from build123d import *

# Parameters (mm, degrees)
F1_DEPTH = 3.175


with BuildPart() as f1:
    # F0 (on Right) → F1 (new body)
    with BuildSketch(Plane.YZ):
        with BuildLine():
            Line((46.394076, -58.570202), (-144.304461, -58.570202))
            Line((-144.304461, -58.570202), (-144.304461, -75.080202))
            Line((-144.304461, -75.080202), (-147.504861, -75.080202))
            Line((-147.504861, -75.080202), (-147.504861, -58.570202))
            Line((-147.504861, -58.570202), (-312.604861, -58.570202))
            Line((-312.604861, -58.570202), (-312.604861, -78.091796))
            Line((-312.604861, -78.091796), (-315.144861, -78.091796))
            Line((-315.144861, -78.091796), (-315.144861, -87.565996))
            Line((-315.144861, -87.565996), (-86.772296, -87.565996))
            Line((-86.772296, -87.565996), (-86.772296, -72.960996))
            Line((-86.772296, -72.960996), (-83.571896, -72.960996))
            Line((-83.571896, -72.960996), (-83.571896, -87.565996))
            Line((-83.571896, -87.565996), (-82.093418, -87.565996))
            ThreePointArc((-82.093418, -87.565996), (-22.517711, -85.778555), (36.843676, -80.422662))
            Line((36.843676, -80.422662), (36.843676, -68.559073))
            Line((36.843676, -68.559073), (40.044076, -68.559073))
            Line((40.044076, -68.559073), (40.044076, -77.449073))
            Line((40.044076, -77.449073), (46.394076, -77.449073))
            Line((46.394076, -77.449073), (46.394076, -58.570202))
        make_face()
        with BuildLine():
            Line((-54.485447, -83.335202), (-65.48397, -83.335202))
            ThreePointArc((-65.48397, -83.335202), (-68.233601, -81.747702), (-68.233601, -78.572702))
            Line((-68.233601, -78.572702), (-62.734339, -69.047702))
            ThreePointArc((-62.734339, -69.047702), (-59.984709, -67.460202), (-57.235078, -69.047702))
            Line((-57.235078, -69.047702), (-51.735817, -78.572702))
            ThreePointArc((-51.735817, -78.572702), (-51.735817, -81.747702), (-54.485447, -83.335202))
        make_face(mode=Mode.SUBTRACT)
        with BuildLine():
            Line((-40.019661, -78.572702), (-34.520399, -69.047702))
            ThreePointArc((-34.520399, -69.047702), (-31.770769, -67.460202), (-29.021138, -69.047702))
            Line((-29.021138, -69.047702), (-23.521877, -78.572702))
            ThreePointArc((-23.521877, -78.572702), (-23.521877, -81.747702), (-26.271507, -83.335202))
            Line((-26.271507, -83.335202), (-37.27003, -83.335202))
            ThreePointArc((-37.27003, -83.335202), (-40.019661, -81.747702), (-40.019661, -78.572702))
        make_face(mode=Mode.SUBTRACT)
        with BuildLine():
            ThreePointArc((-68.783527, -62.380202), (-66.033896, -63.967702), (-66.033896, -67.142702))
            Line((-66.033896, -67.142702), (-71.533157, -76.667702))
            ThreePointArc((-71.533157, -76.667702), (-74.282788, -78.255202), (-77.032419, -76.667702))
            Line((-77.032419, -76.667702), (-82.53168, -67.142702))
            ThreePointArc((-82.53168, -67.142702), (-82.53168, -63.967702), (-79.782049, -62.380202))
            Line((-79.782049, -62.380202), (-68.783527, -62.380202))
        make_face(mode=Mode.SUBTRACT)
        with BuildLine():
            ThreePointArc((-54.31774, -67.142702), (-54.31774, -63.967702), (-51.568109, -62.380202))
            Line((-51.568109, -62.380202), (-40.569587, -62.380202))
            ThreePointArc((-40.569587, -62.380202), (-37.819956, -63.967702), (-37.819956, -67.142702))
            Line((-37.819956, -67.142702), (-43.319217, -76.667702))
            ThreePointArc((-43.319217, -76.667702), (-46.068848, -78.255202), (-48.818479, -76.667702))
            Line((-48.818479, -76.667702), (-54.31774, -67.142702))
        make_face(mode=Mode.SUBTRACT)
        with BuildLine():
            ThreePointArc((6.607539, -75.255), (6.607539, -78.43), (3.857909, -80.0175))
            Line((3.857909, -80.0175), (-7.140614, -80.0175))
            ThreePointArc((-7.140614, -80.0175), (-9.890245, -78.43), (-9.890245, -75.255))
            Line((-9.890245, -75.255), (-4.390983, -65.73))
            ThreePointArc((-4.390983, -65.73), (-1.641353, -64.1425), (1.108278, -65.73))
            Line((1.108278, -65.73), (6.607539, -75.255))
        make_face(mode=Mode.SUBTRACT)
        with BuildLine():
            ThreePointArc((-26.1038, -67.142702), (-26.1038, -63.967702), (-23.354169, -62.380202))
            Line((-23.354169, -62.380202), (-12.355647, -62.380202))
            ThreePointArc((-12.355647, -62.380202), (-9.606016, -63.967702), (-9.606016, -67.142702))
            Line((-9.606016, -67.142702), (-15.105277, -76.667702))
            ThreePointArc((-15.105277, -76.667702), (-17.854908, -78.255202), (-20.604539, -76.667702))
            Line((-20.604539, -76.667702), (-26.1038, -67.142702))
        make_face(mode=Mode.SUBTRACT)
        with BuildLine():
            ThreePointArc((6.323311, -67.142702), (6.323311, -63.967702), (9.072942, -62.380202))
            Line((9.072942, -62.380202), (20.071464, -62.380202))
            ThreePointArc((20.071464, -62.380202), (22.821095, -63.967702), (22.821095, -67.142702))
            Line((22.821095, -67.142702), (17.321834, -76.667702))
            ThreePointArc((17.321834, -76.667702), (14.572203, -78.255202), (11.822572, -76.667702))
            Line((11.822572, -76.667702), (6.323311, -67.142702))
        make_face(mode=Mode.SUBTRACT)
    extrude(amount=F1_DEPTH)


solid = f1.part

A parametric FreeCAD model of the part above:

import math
import FreeCAD as App
import Part
import Sketcher
from FreeCAD import Vector
Q = App.Units.Quantity

doc = App.newDocument("Part")
body = doc.addObject("PartDesign::Body", "Body")

sketch1 = body.newObject("Sketcher::SketchObject", "Sketch")
sketch1.AttachmentSupport = (doc.getObject("YZ_Plane"), [""])
sketch1.MapMode = "FlatFace"
sketch1.addGeometry([
    Part.LineSegment(Vector(46.4, -58.6, 0), Vector(-144.3, -58.6, 0)),
    Part.LineSegment(Vector(-144.3, -58.6, 0), Vector(-144.3, -75.1, 0)),
    Part.LineSegment(Vector(-144.3, -75.1, 0), Vector(-147.5, -75.1, 0)),
    Part.LineSegment(Vector(-147.5, -75.1, 0), Vector(-147.5, -58.6, 0)),
    Part.LineSegment(Vector(-147.5, -58.6, 0), Vector(-312.6, -58.6, 0)),
    Part.LineSegment(Vector(-312.6, -58.6, 0), Vector(-312.6, -78.1, 0)),
    Part.LineSegment(Vector(-312.6, -78.1, 0), Vector(-315.1, -78.1, 0)),
    Part.LineSegment(Vector(-315.1, -78.1, 0), Vector(-315.1, -87.6, 0)),
    Part.LineSegment(Vector(-315.1, -87.6, 0), Vector(-86.8, -87.6, 0)),
    Part.LineSegment(Vector(-86.8, -87.6, 0), Vector(-86.8, -73, 0)),
    Part.LineSegment(Vector(-86.8, -73, 0), Vector(-83.6, -73, 0)),
    Part.LineSegment(Vector(-83.6, -73, 0), Vector(-83.6, -87.6, 0)),
    Part.LineSegment(Vector(-83.6, -87.6, 0), Vector(-82.1, -87.6, 0)),
    Part.ArcOfCircle(Part.Circle(Vector(-82.1, 906.2, 0), Vector(0, 0, 1), 993.7), math.radians(-90), math.radians(-83.13)),
    Part.LineSegment(Vector(36.8, -80.4, 0), Vector(36.8, -68.6, 0)),
    Part.LineSegment(Vector(36.8, -68.6, 0), Vector(40, -68.6, 0)),
    Part.LineSegment(Vector(40, -68.6, 0), Vector(40, -77.4, 0)),
    Part.LineSegment(Vector(40, -77.4, 0), Vector(46.4, -77.4, 0)),
    Part.LineSegment(Vector(46.4, -77.4, 0), Vector(46.4, -58.6, 0)),
    Part.ArcOfCircle(Part.Circle(Vector(-54.5, -80.2, 0), Vector(0, 0, 1), 3.2), math.radians(-90), math.radians(30)),
    Part.LineSegment(Vector(-54.5, -83.3, 0), Vector(-65.5, -83.3, 0)),
    Part.ArcOfCircle(Part.Circle(Vector(-65.5, -80.2, 0), Vector(0, 0, 1), 3.2), math.radians(150), math.radians(270)),
    Part.LineSegment(Vector(-68.2, -78.6, 0), Vector(-62.7, -69, 0)),
    Part.ArcOfCircle(Part.Circle(Vector(-60, -70.6, 0), Vector(0, 0, 1), 3.2), math.radians(30), math.radians(150)),
    Part.LineSegment(Vector(-57.2, -69, 0), Vector(-51.7, -78.6, 0)),
    Part.ArcOfCircle(Part.Circle(Vector(-37.3, -80.2, 0), Vector(0, 0, 1), 3.2), math.radians(150), math.radians(270)),
    Part.LineSegment(Vector(-40, -78.6, 0), Vector(-34.5, -69, 0)),
    Part.ArcOfCircle(Part.Circle(Vector(-31.8, -70.6, 0), Vector(0, 0, 1), 3.2), math.radians(30), math.radians(150)),
    Part.LineSegment(Vector(-29, -69, 0), Vector(-23.5, -78.6, 0)),
    Part.ArcOfCircle(Part.Circle(Vector(-26.3, -80.2, 0), Vector(0, 0, 1), 3.2), math.radians(-90), math.radians(30)),
    Part.LineSegment(Vector(-26.3, -83.3, 0), Vector(-37.3, -83.3, 0)),
    Part.LineSegment(Vector(-79.8, -62.4, 0), Vector(-68.8, -62.4, 0)),
    Part.ArcOfCircle(Part.Circle(Vector(-68.8, -65.6, 0), Vector(0, 0, 1), 3.2), math.radians(-30), math.radians(90)),
    Part.LineSegment(Vector(-66, -67.1, 0), Vector(-71.5, -76.7, 0)),
    Part.ArcOfCircle(Part.Circle(Vector(-74.3, -75.1, 0), Vector(0, 0, 1), 3.2), math.radians(-150), math.radians(-30)),
    Part.LineSegment(Vector(-77, -76.7, 0), Vector(-82.5, -67.1, 0)),
    Part.ArcOfCircle(Part.Circle(Vector(-79.8, -65.6, 0), Vector(0, 0, 1), 3.2), math.radians(90), math.radians(210)),
    Part.LineSegment(Vector(-48.8, -76.7, 0), Vector(-54.3, -67.1, 0)),
    Part.ArcOfCircle(Part.Circle(Vector(-51.6, -65.6, 0), Vector(0, 0, 1), 3.2), math.radians(90), math.radians(210)),
    Part.LineSegment(Vector(-51.6, -62.4, 0), Vector(-40.6, -62.4, 0)),
    Part.ArcOfCircle(Part.Circle(Vector(-40.6, -65.6, 0), Vector(0, 0, 1), 3.2), math.radians(-30), math.radians(90)),
    Part.LineSegment(Vector(-37.8, -67.1, 0), Vector(-43.3, -76.7, 0)),
    Part.ArcOfCircle(Part.Circle(Vector(-46.1, -75.1, 0), Vector(0, 0, 1), 3.2), math.radians(-150), math.radians(-30)),
    Part.LineSegment(Vector(-20.6, -76.7, 0), Vector(-26.1, -67.1, 0)),
    Part.ArcOfCircle(Part.Circle(Vector(-23.4, -65.6, 0), Vector(0, 0, 1), 3.2), math.radians(90), math.radians(210)),
    Part.LineSegment(Vector(-23.4, -62.4, 0), Vector(-12.4, -62.4, 0)),
    Part.ArcOfCircle(Part.Circle(Vector(-12.4, -65.6, 0), Vector(0, 0, 1), 3.2), math.radians(-30), math.radians(90)),
    Part.LineSegment(Vector(-9.6, -67.1, 0), Vector(-15.1, -76.7, 0)),
    Part.ArcOfCircle(Part.Circle(Vector(-17.9, -75.1, 0), Vector(0, 0, 1), 3.2), math.radians(-150), math.radians(-30)),
    Part.LineSegment(Vector(1.1, -65.7, 0), Vector(6.6, -75.3, 0)),
    Part.ArcOfCircle(Part.Circle(Vector(3.9, -76.8, 0), Vector(0, 0, 1), 3.2), math.radians(-90), math.radians(30)),
    Part.LineSegment(Vector(3.9, -80, 0), Vector(-7.1, -80, 0)),
    Part.ArcOfCircle(Part.Circle(Vector(-7.1, -76.8, 0), Vector(0, 0, 1), 3.2), math.radians(150), math.radians(270)),
    Part.LineSegment(Vector(-9.9, -75.3, 0), Vector(-4.4, -65.7, 0)),
    Part.ArcOfCircle(Part.Circle(Vector(-1.6, -67.3, 0), Vector(0, 0, 1), 3.2), math.radians(30), math.radians(150)),
    Part.LineSegment(Vector(11.8, -76.7, 0), Vector(6.3, -67.1, 0)),
    Part.ArcOfCircle(Part.Circle(Vector(9.1, -65.6, 0), Vector(0, 0, 1), 3.2), math.radians(90), math.radians(210)),
    Part.LineSegment(Vector(9.1, -62.4, 0), Vector(20.1, -62.4, 0)),
    Part.ArcOfCircle(Part.Circle(Vector(20.1, -65.6, 0), Vector(0, 0, 1), 3.2), math.radians(-30), math.radians(90)),
    Part.LineSegment(Vector(22.8, -67.1, 0), Vector(17.3, -76.7, 0)),
    Part.ArcOfCircle(Part.Circle(Vector(14.6, -75.1, 0), Vector(0, 0, 1), 3.2), math.radians(-150), math.radians(-30)),
], False)
sketch1.addConstraint([
    Sketcher.Constraint("Coincident", 0, 2, 1, 1),
    Sketcher.Constraint("Coincident", 1, 2, 2, 1),
    Sketcher.Constraint("Coincident", 2, 2, 3, 1),
    Sketcher.Constraint("Coincident", 3, 2, 4, 1),
    Sketcher.Constraint("Coincident", 4, 2, 5, 1),
    Sketcher.Constraint("Coincident", 5, 2, 6, 1),
    Sketcher.Constraint("Coincident", 6, 2, 7, 1),
    Sketcher.Constraint("Coincident", 7, 2, 8, 1),
    Sketcher.Constraint("Coincident", 8, 2, 9, 1),
    Sketcher.Constraint("Coincident", 9, 2, 10, 1),
    Sketcher.Constraint("Coincident", 10, 2, 11, 1),
    Sketcher.Constraint("Coincident", 11, 2, 12, 1),
    Sketcher.Constraint("Tangent", 12, 2, 13, 1),
    Sketcher.Constraint("Coincident", 13, 2, 14, 1),
    Sketcher.Constraint("Coincident", 14, 2, 15, 1),
    Sketcher.Constraint("Coincident", 15, 2, 16, 1),
    Sketcher.Constraint("Coincident", 16, 2, 17, 1),
    Sketcher.Constraint("Coincident", 17, 2, 18, 1),
    Sketcher.Constraint("Coincident", 18, 2, 0, 1),
    Sketcher.Constraint("Tangent", 19, 1, 20, 1),
    Sketcher.Constraint("Tangent", 20, 2, 21, 2),
    Sketcher.Constraint("Tangent", 21, 1, 22, 1),
    Sketcher.Constraint("Tangent", 22, 2, 23, 2),
    Sketcher.Constraint("Tangent", 23, 1, 24, 1),
    Sketcher.Constraint("Tangent", 24, 2, 19, 2),
    Sketcher.Constraint("Tangent", 25, 1, 26, 1),
    Sketcher.Constraint("Tangent", 26, 2, 27, 2),
    Sketcher.Constraint("Tangent", 27, 1, 28, 1),
    Sketcher.Constraint("Tangent", 28, 2, 29, 2),
    Sketcher.Constraint("Tangent", 29, 1, 30, 1),
    Sketcher.Constraint("Tangent", 30, 2, 25, 2),
    Sketcher.Constraint("Tangent", 31, 2, 32, 2),
    Sketcher.Constraint("Tangent", 32, 1, 33, 1),
    Sketcher.Constraint("Tangent", 33, 2, 34, 2),
    Sketcher.Constraint("Tangent", 34, 1, 35, 1),
    Sketcher.Constraint("Tangent", 35, 2, 36, 2),
    Sketcher.Constraint("Tangent", 36, 1, 31, 1),
    Sketcher.Constraint("Tangent", 37, 2, 38, 2),
    Sketcher.Constraint("Tangent", 38, 1, 39, 1),
    Sketcher.Constraint("Tangent", 39, 2, 40, 2),
    Sketcher.Constraint("Tangent", 40, 1, 41, 1),
    Sketcher.Constraint("Tangent", 41, 2, 42, 2),
    Sketcher.Constraint("Tangent", 42, 1, 37, 1),
    Sketcher.Constraint("Tangent", 43, 2, 44, 2),
    Sketcher.Constraint("Tangent", 44, 1, 45, 1),
    Sketcher.Constraint("Tangent", 45, 2, 46, 2),
    Sketcher.Constraint("Tangent", 46, 1, 47, 1),
    Sketcher.Constraint("Tangent", 47, 2, 48, 2),
    Sketcher.Constraint("Tangent", 48, 1, 43, 1),
    Sketcher.Constraint("Tangent", 49, 2, 50, 2),
    Sketcher.Constraint("Tangent", 50, 1, 51, 1),
    Sketcher.Constraint("Tangent", 51, 2, 52, 2),
    Sketcher.Constraint("Tangent", 52, 1, 53, 1),
    Sketcher.Constraint("Tangent", 53, 2, 54, 2),
    Sketcher.Constraint("Tangent", 54, 1, 49, 1),
    Sketcher.Constraint("Tangent", 55, 2, 56, 2),
    Sketcher.Constraint("Tangent", 56, 1, 57, 1),
    Sketcher.Constraint("Tangent", 57, 2, 58, 2),
    Sketcher.Constraint("Tangent", 58, 1, 59, 1),
    Sketcher.Constraint("Tangent", 59, 2, 60, 2),
    Sketcher.Constraint("Tangent", 60, 1, 55, 1),
    Sketcher.Constraint("Horizontal", 0),
    Sketcher.Constraint("Vertical", 1),
    Sketcher.Constraint("Horizontal", 2),
    Sketcher.Constraint("Vertical", 3),
    Sketcher.Constraint("Horizontal", 4),
    Sketcher.Constraint("Vertical", 5),
    Sketcher.Constraint("Horizontal", 6),
    Sketcher.Constraint("Vertical", 7),
    Sketcher.Constraint("Horizontal", 8),
    Sketcher.Constraint("Vertical", 9),
    Sketcher.Constraint("Horizontal", 10),
    Sketcher.Constraint("Vertical", 11),
    Sketcher.Constraint("Vertical", 14),
    Sketcher.Constraint("Horizontal", 15),
    Sketcher.Constraint("Vertical", 16),
    Sketcher.Constraint("Horizontal", 17),
    Sketcher.Constraint("Vertical", 18),
    Sketcher.Constraint("Horizontal", 20),
    Sketcher.Constraint("Horizontal", 30),
    Sketcher.Constraint("Horizontal", 31),
    Sketcher.Constraint("Horizontal", 39),
    Sketcher.Constraint("Horizontal", 45),
    Sketcher.Constraint("Horizontal", 51),
    Sketcher.Constraint("Horizontal", 57),
    Sketcher.Constraint("Equal", 19, 21),
    Sketcher.Constraint("Equal", 21, 23),
    Sketcher.Constraint("Equal", 23, 25),
    Sketcher.Constraint("Equal", 25, 27),
    Sketcher.Constraint("Equal", 27, 29),
    Sketcher.Constraint("Equal", 29, 32),
    Sketcher.Constraint("Equal", 32, 34),
    Sketcher.Constraint("Equal", 34, 36),
    Sketcher.Constraint("Equal", 36, 38),
    Sketcher.Constraint("Equal", 38, 40),
    Sketcher.Constraint("Equal", 40, 42),
    Sketcher.Constraint("Equal", 42, 44),
    Sketcher.Constraint("Equal", 44, 46),
    Sketcher.Constraint("Equal", 46, 48),
    Sketcher.Constraint("Equal", 48, 50),
    Sketcher.Constraint("Equal", 50, 52),
    Sketcher.Constraint("Equal", 52, 54),
    Sketcher.Constraint("Equal", 54, 56),
    Sketcher.Constraint("Equal", 56, 58),
    Sketcher.Constraint("Equal", 58, 60),
    Sketcher.Constraint("Parallel", 22, 26),
    Sketcher.Constraint("Parallel", 24, 28),
    Sketcher.Constraint("Parallel", 26, 33),
    Sketcher.Constraint("Parallel", 28, 35),
    Sketcher.Constraint("Parallel", 35, 37),
    Sketcher.Constraint("Parallel", 33, 41),
    Sketcher.Constraint("Parallel", 37, 43),
    Sketcher.Constraint("Parallel", 41, 47),
    Sketcher.Constraint("Parallel", 43, 49),
    Sketcher.Constraint("Parallel", 47, 53),
    Sketcher.Constraint("Parallel", 49, 55),
    Sketcher.Constraint("Parallel", 53, 59),
    Sketcher.Constraint("Horizontal", 21, 3, 25, 3),
    Sketcher.Constraint("Horizontal", 23, 3, 27, 3),
    Sketcher.Constraint("Horizontal", 36, 3, 38, 3),
    Sketcher.Constraint("Horizontal", 34, 3, 42, 3),
    Sketcher.Constraint("Horizontal", 40, 3, 44, 3),
    Sketcher.Constraint("Horizontal", 42, 3, 48, 3),
    Sketcher.Constraint("Horizontal", 46, 3, 56, 3),
    Sketcher.Constraint("Horizontal", 48, 3, 60, 3),
    Sketcher.Constraint("Horizontal", 60, 3, 1, 2),
    Sketcher.Constraint("Horizontal", 0, 2, 3, 2),
    Sketcher.Constraint("Horizontal", 8, 2, 11, 2),
    Sketcher.Constraint("Horizontal", 22, 2, 23, 1),
    Sketcher.Constraint("Vertical", 13, 3, 12, 2),
    Sketcher.Constraint("Equal", 2, 10),
    Sketcher.Constraint("Equal", 10, 15),
    Sketcher.Constraint("Equal", 30, 31),
    Sketcher.Constraint("Equal", 45, 51),
    Sketcher.Constraint("DistanceX", 4, 2, 4, 1, Q("6.5 in")),
    Sketcher.Constraint("DistanceX", 6, 2, 6, 1, Q("0.1 in")),
    Sketcher.Constraint("Angle", 22, Q("59.999997 deg")),
    Sketcher.Constraint("Radius", 19, Q("0.125 in")),
    Sketcher.Constraint("DistanceX", 17, 1, 17, 2, Q("0.25 in")),
    Sketcher.Constraint("DistanceY", 1, 2, 1, 1, Q("0.65 in")),
    Sketcher.Constraint("DistanceY", 16, 2, 16, 1, Q("0.35 in")),
    Sketcher.Constraint("DistanceX", 2, 2, 2, 1, Q("0.126 in")),
    Sketcher.Constraint("DistanceY", 7, 2, 7, 1, Q("0.373 in")),
    Sketcher.Constraint("DistanceY", 9, 1, 9, 2, Q("0.575 in")),
    Sketcher.Constraint("Radius", 13, Q("993.727803 mm")),
    Sketcher.Constraint("DistanceX", 31, 1, 31, 2, Q("10.998522 mm")),
    Sketcher.Constraint("DistanceY", 14, 1, 14, 2, Q("11.863589 mm")),
    Sketcher.Constraint("DistanceY", 18, 1, 18, 2, Q("18.878871 mm")),
    Sketcher.Constraint("DistanceY", 19, 3, -1, 1, Q("80.160202 mm")),
    Sketcher.Constraint("DistanceY", 32, 3, -1, 1, Q("65.555202 mm")),
    Sketcher.Constraint("DistanceY", 50, 3, -1, 1, Q("76.8425 mm")),
    Sketcher.Constraint("DistanceX", 21, 1, -1, 1, Q("68.233601 mm")),
    Sketcher.Constraint("DistanceX", 26, 2, -1, 1, Q("34.520399 mm")),
    Sketcher.Constraint("DistanceX", 43, 2, -1, 1, Q("26.1038 mm")),
    Sketcher.Constraint("DistanceX", 0, 2, 0, 1, Q("190.698537 mm")),
    Sketcher.Constraint("DistanceX", 8, 1, 8, 2, Q("228.372565 mm")),
    Sketcher.Constraint("DistanceX", 12, 1, 12, 2, Q("1.478478 mm")),
    Sketcher.Constraint("DistanceX", 36, 3, -1, 1, Q("79.782049 mm")),
    Sketcher.Constraint("DistanceX", 38, 3, -1, 1, Q("51.568109 mm")),
    Sketcher.Constraint("DistanceX", -1, 1, 50, 3, Q("3.857908 mm")),
    Sketcher.Constraint("DistanceX", -1, 1, 56, 3, Q("9.072942 mm")),
    Sketcher.Constraint("DistanceX", 0, 2, -1, 1, Q("144.304461 mm")),
])
pad1 = body.newObject("PartDesign::Pad", "Pad")
pad1.Profile = sketch1
pad1.Length = Q("0.125 in")

doc.recompute()
